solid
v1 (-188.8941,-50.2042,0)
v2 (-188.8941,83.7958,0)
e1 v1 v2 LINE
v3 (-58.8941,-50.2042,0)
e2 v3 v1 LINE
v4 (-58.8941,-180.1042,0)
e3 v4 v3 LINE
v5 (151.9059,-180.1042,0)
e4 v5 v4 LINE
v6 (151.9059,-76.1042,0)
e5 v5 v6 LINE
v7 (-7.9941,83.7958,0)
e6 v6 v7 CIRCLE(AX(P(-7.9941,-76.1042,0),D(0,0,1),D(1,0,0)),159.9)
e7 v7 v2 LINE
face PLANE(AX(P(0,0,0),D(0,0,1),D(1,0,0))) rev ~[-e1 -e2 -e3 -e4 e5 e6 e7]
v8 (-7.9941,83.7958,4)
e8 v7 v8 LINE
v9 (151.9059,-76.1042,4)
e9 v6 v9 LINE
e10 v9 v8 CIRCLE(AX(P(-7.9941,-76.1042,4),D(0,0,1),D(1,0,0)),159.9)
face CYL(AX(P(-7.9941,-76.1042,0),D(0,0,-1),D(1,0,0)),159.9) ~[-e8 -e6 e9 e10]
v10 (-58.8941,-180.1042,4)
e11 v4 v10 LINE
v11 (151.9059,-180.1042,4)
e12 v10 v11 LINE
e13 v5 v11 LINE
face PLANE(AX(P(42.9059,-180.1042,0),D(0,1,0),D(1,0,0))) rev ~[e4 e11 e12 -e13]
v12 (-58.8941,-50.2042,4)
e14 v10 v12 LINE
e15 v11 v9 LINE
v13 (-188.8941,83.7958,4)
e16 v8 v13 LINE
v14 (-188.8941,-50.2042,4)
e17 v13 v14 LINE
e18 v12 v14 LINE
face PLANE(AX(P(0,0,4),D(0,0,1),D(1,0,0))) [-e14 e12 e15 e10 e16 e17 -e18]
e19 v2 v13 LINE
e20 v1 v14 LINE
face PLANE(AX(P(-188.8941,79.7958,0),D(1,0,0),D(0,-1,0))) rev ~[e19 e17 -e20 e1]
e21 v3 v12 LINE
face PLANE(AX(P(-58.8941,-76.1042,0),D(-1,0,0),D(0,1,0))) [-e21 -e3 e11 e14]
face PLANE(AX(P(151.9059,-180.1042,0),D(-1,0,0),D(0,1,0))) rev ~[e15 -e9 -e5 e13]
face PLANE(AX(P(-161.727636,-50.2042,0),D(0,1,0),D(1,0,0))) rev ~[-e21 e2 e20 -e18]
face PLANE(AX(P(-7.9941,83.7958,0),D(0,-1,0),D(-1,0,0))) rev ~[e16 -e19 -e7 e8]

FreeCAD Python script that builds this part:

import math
import FreeCAD as App
import Part
import Sketcher
from FreeCAD import Vector
Q = App.Units.Quantity

doc = App.newDocument("Part")
body = doc.addObject("PartDesign::Body", "Body")

# Sketch on XY plane
sketch1 = body.newObject("Sketcher::SketchObject", "Sketch")
sketch1.AttachmentSupport = (doc.getObject("XY_Plane"), [""])
sketch1.MapMode = "FlatFace"
sketch1.addGeometry([
    Part.LineSegment(Vector(-59, -50, 0), Vector(-59, -180, 0)),  # 0
    Part.LineSegment(Vector(-59, -180, 0), Vector(152, -180, 0)),  # 1
    Part.LineSegment(Vector(152, -180, 0), Vector(152, -76, 0)),  # 2
    Part.ArcOfCircle(Part.Circle(Vector(-8, -76, 0), Vector(0, 0, 1), 160), math.radians(0), math.radians(90)),  # 3
    Part.LineSegment(Vector(-8, 84, 0), Vector(-189, 84, 0)),  # 4
    Part.LineSegment(Vector(-189, 84, 0), Vector(-189, -50, 0)),  # 5
    Part.LineSegment(Vector(-189, -50, 0), Vector(-59, -50, 0)),  # 6
], False)
sketch1.addConstraint([
    Sketcher.Constraint("Coincident", 0, 2, 1, 1),
    Sketcher.Constraint("Coincident", 1, 2, 2, 1),
    Sketcher.Constraint("Tangent", 2, 2, 3, 1),
    Sketcher.Constraint("Tangent", 3, 2, 4, 1),
    Sketcher.Constraint("Coincident", 4, 2, 5, 1),
    Sketcher.Constraint("Coincident", 5, 2, 6, 1),
    Sketcher.Constraint("Coincident", 6, 2, 0, 1),
    Sketcher.Constraint("Vertical", 0),
    Sketcher.Constraint("Horizontal", 1),
    Sketcher.Constraint("Vertical", 2),
    Sketcher.Constraint("Horizontal", 4),
    Sketcher.Constraint("Vertical", 5),
    Sketcher.Constraint("Horizontal", 6),
    Sketcher.Constraint("DistanceX", 6, 1, 6, 2, Q("130 mm")),
    Sketcher.Constraint("Radius", 3, Q("159.9 mm")),
    Sketcher.Constraint("DistanceY", 2, 1, 2, 2, Q("104 mm")),
    Sketcher.Constraint("DistanceY", 5, 2, 5, 1, Q("134 mm")),
    Sketcher.Constraint("DistanceX", 1, 1, 1, 2, Q("210.8 mm")),
    Sketcher.Constraint("DistanceX", 3, 3, -1, 1, Q("7.994 mm")),
    Sketcher.Constraint("DistanceY", 3, 3, -1, 1, Q("76.1042 mm")),
])
pad1 = body.newObject("PartDesign::Pad", "Pad")
pad1.Profile = sketch1
pad1.Length = 4

doc.recompute()
